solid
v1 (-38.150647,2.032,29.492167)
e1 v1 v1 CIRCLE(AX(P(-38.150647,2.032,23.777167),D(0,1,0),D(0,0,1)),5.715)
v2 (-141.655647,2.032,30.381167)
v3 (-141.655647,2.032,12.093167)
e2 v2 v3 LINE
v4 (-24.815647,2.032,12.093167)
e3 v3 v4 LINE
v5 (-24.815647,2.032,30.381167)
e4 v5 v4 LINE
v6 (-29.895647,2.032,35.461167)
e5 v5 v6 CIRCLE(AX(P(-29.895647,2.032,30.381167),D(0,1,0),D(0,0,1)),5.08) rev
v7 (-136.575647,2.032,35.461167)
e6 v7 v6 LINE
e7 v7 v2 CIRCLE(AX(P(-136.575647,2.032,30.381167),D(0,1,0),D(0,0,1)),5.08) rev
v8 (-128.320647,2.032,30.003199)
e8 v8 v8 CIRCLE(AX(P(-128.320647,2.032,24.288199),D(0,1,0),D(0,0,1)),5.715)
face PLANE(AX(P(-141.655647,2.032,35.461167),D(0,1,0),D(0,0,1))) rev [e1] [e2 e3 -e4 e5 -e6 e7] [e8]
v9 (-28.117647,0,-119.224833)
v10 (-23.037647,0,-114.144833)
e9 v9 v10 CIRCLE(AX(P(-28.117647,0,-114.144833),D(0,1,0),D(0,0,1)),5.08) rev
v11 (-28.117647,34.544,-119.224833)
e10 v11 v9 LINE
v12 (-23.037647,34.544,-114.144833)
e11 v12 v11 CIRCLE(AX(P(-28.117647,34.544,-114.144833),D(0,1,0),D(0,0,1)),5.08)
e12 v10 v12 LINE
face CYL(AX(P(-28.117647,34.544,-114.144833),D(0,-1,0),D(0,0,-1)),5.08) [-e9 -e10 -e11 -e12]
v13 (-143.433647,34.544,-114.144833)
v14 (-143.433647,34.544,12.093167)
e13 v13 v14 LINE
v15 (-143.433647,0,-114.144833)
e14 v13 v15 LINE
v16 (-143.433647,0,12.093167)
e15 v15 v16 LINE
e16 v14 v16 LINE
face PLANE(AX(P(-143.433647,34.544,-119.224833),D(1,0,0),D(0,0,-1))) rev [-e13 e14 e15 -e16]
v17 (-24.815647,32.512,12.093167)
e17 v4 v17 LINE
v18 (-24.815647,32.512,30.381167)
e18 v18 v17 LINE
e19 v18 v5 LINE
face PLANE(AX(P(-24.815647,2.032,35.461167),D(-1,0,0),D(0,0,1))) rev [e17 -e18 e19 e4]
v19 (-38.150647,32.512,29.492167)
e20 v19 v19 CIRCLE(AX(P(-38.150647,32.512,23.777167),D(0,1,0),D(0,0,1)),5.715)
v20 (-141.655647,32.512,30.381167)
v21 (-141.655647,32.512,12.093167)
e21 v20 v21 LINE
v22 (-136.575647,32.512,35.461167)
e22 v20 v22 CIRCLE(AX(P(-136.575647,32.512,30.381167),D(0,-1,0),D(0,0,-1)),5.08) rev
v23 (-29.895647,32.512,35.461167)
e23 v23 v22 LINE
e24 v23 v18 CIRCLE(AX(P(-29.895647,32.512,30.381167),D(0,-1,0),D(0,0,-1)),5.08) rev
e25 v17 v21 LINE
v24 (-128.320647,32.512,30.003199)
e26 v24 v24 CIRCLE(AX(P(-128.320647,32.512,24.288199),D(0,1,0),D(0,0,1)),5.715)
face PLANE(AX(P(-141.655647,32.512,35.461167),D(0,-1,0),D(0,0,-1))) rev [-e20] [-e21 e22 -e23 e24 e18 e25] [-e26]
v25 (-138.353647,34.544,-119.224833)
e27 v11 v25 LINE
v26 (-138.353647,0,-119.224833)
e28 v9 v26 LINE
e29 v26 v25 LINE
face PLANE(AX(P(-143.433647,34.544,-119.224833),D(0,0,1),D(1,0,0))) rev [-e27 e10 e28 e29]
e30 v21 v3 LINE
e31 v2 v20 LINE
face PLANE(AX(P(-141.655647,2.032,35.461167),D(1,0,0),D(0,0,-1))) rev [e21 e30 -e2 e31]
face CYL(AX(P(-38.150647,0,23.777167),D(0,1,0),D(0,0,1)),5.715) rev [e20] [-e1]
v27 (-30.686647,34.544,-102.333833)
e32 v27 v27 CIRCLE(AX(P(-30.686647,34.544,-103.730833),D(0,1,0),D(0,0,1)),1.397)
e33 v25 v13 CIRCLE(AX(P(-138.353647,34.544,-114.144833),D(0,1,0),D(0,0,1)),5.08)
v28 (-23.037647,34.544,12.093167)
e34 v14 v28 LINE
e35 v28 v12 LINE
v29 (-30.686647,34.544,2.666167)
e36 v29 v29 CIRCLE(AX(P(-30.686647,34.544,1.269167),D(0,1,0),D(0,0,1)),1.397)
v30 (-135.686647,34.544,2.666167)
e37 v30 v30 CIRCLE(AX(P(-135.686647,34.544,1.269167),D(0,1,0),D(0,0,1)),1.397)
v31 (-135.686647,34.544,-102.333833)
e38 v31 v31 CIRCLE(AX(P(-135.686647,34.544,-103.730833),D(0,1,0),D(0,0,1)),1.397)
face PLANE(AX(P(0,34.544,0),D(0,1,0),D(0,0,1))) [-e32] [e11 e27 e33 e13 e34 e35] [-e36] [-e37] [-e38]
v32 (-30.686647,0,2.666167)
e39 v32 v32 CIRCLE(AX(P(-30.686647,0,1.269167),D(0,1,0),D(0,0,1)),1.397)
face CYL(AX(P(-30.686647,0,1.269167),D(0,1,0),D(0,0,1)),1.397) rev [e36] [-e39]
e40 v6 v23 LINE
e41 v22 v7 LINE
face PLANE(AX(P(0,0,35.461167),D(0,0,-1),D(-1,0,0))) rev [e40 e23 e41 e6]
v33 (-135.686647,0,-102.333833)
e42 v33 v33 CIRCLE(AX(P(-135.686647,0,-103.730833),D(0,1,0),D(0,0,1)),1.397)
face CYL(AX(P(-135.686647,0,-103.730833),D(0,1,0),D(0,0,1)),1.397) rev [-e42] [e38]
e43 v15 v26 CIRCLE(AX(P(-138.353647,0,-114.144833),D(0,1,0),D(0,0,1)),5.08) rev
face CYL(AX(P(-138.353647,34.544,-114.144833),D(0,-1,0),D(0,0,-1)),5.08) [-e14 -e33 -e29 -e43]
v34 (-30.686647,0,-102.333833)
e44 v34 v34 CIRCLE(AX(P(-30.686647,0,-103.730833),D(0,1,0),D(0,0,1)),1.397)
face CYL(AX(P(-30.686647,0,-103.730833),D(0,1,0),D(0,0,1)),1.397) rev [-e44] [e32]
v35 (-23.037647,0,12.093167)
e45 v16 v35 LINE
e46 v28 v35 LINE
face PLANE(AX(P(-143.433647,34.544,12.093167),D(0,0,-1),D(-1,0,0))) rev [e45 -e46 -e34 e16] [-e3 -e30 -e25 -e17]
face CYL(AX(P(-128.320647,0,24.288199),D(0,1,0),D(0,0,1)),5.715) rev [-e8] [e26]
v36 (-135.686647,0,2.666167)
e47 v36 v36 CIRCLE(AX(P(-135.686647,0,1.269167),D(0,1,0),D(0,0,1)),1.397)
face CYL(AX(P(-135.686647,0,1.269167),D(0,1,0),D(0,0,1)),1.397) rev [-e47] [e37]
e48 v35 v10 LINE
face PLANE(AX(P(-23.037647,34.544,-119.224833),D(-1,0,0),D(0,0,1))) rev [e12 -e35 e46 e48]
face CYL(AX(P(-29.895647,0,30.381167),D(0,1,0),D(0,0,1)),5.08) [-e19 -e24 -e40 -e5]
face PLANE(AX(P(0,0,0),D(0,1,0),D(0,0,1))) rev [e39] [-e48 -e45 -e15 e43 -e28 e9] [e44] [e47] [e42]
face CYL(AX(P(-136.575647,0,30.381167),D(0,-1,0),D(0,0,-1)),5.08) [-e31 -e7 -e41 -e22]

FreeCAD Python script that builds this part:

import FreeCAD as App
import Part
import Sketcher

V = App.Vector
Q = App.Units.Quantity


def edges_at(feature, points):
    """Names of the edges that pass closest to the given points."""
    edges = feature.Shape.Edges
    near = lambda p: min(range(len(edges)), key=lambda i: edges[i].distToShape(Part.Vertex(*p))[0])
    return sorted({f"Edge{near(p) + 1}" for p in points})


def add_polygon(sketch, points):
    """Adds a closed chain of lines whose ends are joined by coincident constraints."""
    first, n = sketch.GeometryCount, len(points)
    for a, b in zip(points, points[1:] + points[:1]):
        sketch.addGeometry(Part.LineSegment(App.Vector(*a, 0), App.Vector(*b, 0)), False)
    for i in range(n):
        sketch.addConstraint(Sketcher.Constraint("Coincident", first + i, 2, first + (i + 1) % n, 1))

doc = App.newDocument("Part")
body = doc.addObject("PartDesign::Body", "Body")

# Sketch on XZ plane
sketch1 = doc.addObject("Sketcher::SketchObject", "Sketch")
body.addObject(sketch1)
sketch1.AttachmentSupport = (doc.XZ_Plane, [""])
sketch1.MapMode = "FlatFace"
add_polygon(sketch1, [(-143, -119), (-143, 12), (-23, 12), (-23, -119)])  # lines 0-3
sketch1.addConstraint(Sketcher.Constraint("Vertical", 0))
sketch1.addConstraint(Sketcher.Constraint("Horizontal", 1))
sketch1.addConstraint(Sketcher.Constraint("Vertical", 2))
sketch1.addConstraint(Sketcher.Constraint("Horizontal", 3))
sketch1.addConstraint(Sketcher.Constraint("DistanceX", 1, 1, 1, 2, Q("4.74 in")))
sketch1.addConstraint(Sketcher.Constraint("DistanceY", 0, 1, 0, 2, Q("5.17 in")))
sketch1.addConstraint(Sketcher.Constraint("DistanceX", 0, 2, -1, 1, Q("143.433647 mm")))
sketch1.addConstraint(Sketcher.Constraint("DistanceY", -1, 1, 0, 2, Q("12.093167 mm")))
pad1 = doc.addObject("PartDesign::Pad", "Pad")
body.addObject(pad1)
pad1.Profile = sketch1
pad1.Length = Q("1.36 in")
pad1.Reversed = True

# Sketch on XZ plane
sketch2 = doc.addObject("Sketcher::SketchObject", "Sketch001")
body.addObject(sketch2)
sketch2.AttachmentSupport = (doc.XZ_Plane, [""])
sketch2.MapMode = "FlatFace"
sketch2.AttachmentOffset = App.Placement(V(0, 0, -1.36 * 25.4), App.Rotation())
sketch2.addGeometry(Part.Circle(V(-135.7, -103.7, 0), V(0, 0, 1), 1.4), False)
sketch2.addGeometry(Part.Circle(V(-30.7, -103.7, 0), V(0, 0, 1), 1.4), False)
sketch2.addGeometry(Part.Circle(V(-135.7, 1.3, 0), V(0, 0, 1), 1.4), False)
sketch2.addGeometry(Part.Circle(V(-30.7, 1.3, 0), V(0, 0, 1), 1.4), False)
sketch2.addConstraint(Sketcher.Constraint("Equal", 0, 1))
sketch2.addConstraint(Sketcher.Constraint("Equal", 1, 2))
sketch2.addConstraint(Sketcher.Constraint("Equal", 2, 3))
sketch2.addConstraint(Sketcher.Constraint("Horizontal", 0, 3, 1, 3))
sketch2.addConstraint(Sketcher.Constraint("Horizontal", 2, 3, 3, 3))
sketch2.addConstraint(Sketcher.Constraint("Vertical", 0, 3, 2, 3))
sketch2.addConstraint(Sketcher.Constraint("Vertical", 1, 3, 3, 3))
sketch2.addConstraint(Sketcher.Constraint("Diameter", 0, Q("0.11 in")))
sketch2.addConstraint(Sketcher.Constraint("DistanceX", 0, 3, 1, 3, Q("105 mm")))
sketch2.addConstraint(Sketcher.Constraint("DistanceY", 0, 3, 2, 3, Q("105 mm")))
sketch2.addConstraint(Sketcher.Constraint("DistanceX", 0, 3, -1, 1, Q("135.686647 mm")))
sketch2.addConstraint(Sketcher.Constraint("DistanceY", 0, 3, -1, 1, Q("103.730833 mm")))
pocket1 = doc.addObject("PartDesign::Pocket", "Pocket")
body.addObject(pocket1)
pocket1.Profile = sketch2
pocket1.Type = "ThroughAll"
pocket1.Reversed = True

# Sketch on XY plane
sketch3 = doc.addObject("Sketcher::SketchObject", "Sketch002")
body.addObject(sketch3)
sketch3.AttachmentSupport = (doc.XY_Plane, [""])
sketch3.MapMode = "FlatFace"
sketch3.AttachmentOffset = App.Placement(V(0, 0, 12.093167), App.Rotation())
add_polygon(sketch3, [(-142, 33), (-142, 2), (-25, 2), (-25, 33)])  # lines 0-3
sketch3.addConstraint(Sketcher.Constraint("Vertical", 0))
sketch3.addConstraint(Sketcher.Constraint("Horizontal", 1))
sketch3.addConstraint(Sketcher.Constraint("Vertical", 2))
sketch3.addConstraint(Sketcher.Constraint("Horizontal", 3))
sketch3.addConstraint(Sketcher.Constraint("DistanceX", 1, 1, 1, 2, Q("4.6 in")))
sketch3.addConstraint(Sketcher.Constraint("DistanceY", 0, 2, 0, 1, Q("1.2 in")))
sketch3.addConstraint(Sketcher.Constraint("DistanceY", -1, 1, 0, 2, Q("0.08 in")))
sketch3.addConstraint(Sketcher.Constraint("DistanceX", 0, 2, -1, 1, Q("141.655647 mm")))
pad2 = doc.addObject("PartDesign::Pad", "Pad001")
body.addObject(pad2)
pad2.Profile = sketch3
pad2.Length = Q("0.92 in")

# Sketch on XZ plane
sketch4 = doc.addObject("Sketcher::SketchObject", "Sketch003")
body.addObject(sketch4)
sketch4.AttachmentSupport = (doc.XZ_Plane, [""])
sketch4.MapMode = "FlatFace"
sketch4.AttachmentOffset = App.Placement(V(0, 0, -1.28 * 25.4), App.Rotation())
sketch4.addGeometry(Part.Circle(V(-128, 24, 0), V(0, 0, 1), 6), False)
sketch4.addGeometry(Part.Circle(V(-38, 24, 0), V(0, 0, 1), 6), False)
sketch4.addConstraint(Sketcher.Constraint("Equal", 0, 1))
sketch4.addConstraint(Sketcher.Constraint("Diameter", 0, Q("0.45 in")))
sketch4.addConstraint(Sketcher.Constraint("DistanceX", 0, 3, 1, 3, Q("3.55 in")))
sketch4.addConstraint(Sketcher.Constraint("DistanceY", -1, 1, 0, 3, Q("24.288199 mm")))
sketch4.addConstraint(Sketcher.Constraint("DistanceY", 1, 3, 0, 3, Q("0.511031 mm")))
sketch4.addConstraint(Sketcher.Constraint("DistanceX", 0, 3, -1, 1, Q("128.320647 mm")))
pocket2 = doc.addObject("PartDesign::Pocket", "Pocket001")
body.addObject(pocket2)
pocket2.Profile = sketch4
pocket2.Type = "ThroughAll"
pocket2.Reversed = True
doc.recompute()

fillet = doc.addObject("PartDesign::Fillet", "Fillet")
body.addObject(fillet)
fillet.Base = (pocket2, edges_at(pocket2, [
    (-24.816, 17.272, 35.461),
    (-141.656, 17.272, 35.461),
    (-143.434, 17.272, -119.225),
    (-23.038, 17.272, -119.225),
]))
fillet.Radius = Q("0.2 in")

doc.recompute()
